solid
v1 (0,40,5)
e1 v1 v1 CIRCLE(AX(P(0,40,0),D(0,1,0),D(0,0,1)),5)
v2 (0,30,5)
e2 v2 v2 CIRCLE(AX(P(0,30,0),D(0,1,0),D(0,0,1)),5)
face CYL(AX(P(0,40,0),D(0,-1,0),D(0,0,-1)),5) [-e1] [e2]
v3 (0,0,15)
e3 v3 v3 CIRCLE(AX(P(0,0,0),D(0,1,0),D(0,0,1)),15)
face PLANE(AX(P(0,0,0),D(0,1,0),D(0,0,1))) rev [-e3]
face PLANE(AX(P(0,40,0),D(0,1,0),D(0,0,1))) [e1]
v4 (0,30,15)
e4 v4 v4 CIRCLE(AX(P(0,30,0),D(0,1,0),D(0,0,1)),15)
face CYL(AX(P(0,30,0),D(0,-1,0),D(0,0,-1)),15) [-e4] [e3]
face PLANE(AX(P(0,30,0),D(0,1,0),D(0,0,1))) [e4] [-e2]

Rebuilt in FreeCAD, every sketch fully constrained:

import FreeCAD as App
import Part
import Sketcher

V = App.Vector

doc = App.newDocument("Part")
body = doc.addObject("PartDesign::Body", "Body")

# Sketch on XZ plane
sketch1 = body.newObject("Sketcher::SketchObject", "Sketch")
sketch1.AttachmentSupport = (doc.getObject("XZ_Plane"), [""])
sketch1.MapMode = "FlatFace"
sketch1.addGeometry(Part.Circle(V(0, 0, 0), V(0, 0, 1), 15), False)
sketch1.addConstraint([
    Sketcher.Constraint("Coincident", 0, 3, -1, 1),
    Sketcher.Constraint("Diameter", 0, 30.0),
])
pad1 = body.newObject("PartDesign::Pad", "Pad")
pad1.Profile = sketch1
pad1.Length = 30
pad1.Reversed = True

# Sketch on XZ plane
sketch2 = body.newObject("Sketcher::SketchObject", "Sketch001")
sketch2.AttachmentSupport = (doc.getObject("XZ_Plane"), [""])
sketch2.MapMode = "FlatFace"
sketch2.AttachmentOffset = App.Placement(V(0, 0, -30), App.Rotation())
sketch2.addGeometry(Part.Circle(V(0, 0, 0), V(0, 0, 1), 5), False)
sketch2.addConstraint([
    Sketcher.Constraint("Coincident", 0, 3, -1, 1),
    Sketcher.Constraint("Diameter", 0, 10.0),
])
pad2 = body.newObject("PartDesign::Pad", "Pad001")
pad2.Profile = sketch2
pad2.Length = 10
pad2.Reversed = True

doc.recompute()
